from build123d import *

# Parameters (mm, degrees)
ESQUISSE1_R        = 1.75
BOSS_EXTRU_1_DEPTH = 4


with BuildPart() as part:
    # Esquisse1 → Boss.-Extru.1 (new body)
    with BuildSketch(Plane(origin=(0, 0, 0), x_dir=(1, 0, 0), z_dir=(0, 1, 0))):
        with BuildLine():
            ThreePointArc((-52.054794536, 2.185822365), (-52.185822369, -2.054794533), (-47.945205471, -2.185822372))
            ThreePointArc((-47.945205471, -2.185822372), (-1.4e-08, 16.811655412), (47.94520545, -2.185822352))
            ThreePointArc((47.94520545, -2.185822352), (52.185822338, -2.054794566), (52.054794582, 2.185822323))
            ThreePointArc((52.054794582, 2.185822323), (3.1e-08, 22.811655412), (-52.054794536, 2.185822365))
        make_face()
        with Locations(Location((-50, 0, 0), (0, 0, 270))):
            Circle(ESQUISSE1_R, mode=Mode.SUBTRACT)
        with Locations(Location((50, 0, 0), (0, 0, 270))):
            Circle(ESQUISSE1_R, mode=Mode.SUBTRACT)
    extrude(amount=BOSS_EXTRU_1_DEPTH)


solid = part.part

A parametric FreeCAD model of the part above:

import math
import FreeCAD as App
import Part
import Sketcher

V = App.Vector
Q = App.Units.Quantity

doc = App.newDocument("Part")
body = doc.addObject("PartDesign::Body", "Body")

# Sketch on XZ plane
sketch1 = body.newObject("Sketcher::SketchObject", "Sketch")
sketch1.AttachmentSupport = (doc.getObject("XZ_Plane"), [""])
sketch1.MapMode = "FlatFace"
sketch1.addGeometry(Part.ArcOfCircle(Part.Circle(V(-50, 0, 0), V(0, 0, 1), 3), math.radians(47), math.radians(227)), False)
sketch1.addGeometry(Part.ArcOfCircle(Part.Circle(V(0, 53.2, 0), V(0, 0, 1), 70), math.radians(-133), math.radians(-47)), False)
sketch1.addGeometry(Part.ArcOfCircle(Part.Circle(V(50, 0, 0), V(0, 0, 1), 3), math.radians(-47), math.radians(133)), False)
sketch1.addGeometry(Part.ArcOfCircle(Part.Circle(V(0, 53.2, 0), V(0, 0, 1), 76), math.radians(-133), math.radians(-47)), False)
sketch1.addGeometry(Part.Circle(V(-50, 0, 0), V(0, 0, 1), 1.8), False)
sketch1.addGeometry(Part.Circle(V(50, 0, 0), V(0, 0, 1), 1.8), False)
sketch1.addConstraint(Sketcher.Constraint("Tangent", 0, 1, 1, 1))
sketch1.addConstraint(Sketcher.Constraint("Tangent", 1, 2, 2, 2))
sketch1.addConstraint(Sketcher.Constraint("Tangent", 2, 1, 3, 2))
sketch1.addConstraint(Sketcher.Constraint("Tangent", 3, 1, 0, 2))
sketch1.addConstraint(Sketcher.Constraint("Coincident", 3, 3, 1, 3))
sketch1.addConstraint(Sketcher.Constraint("Coincident", 4, 3, 0, 3))
sketch1.addConstraint(Sketcher.Constraint("Coincident", 5, 3, 2, 3))
sketch1.addConstraint(Sketcher.Constraint("Equal", 4, 5))
sketch1.addConstraint(Sketcher.Constraint("Symmetric", 0, 3, 2, 3, -1, 1))
sketch1.addConstraint(Sketcher.Constraint("PointOnObject", 0, 3, -1))
sketch1.addConstraint(Sketcher.Constraint("Radius", 0, Q("3 mm")))
sketch1.addConstraint(Sketcher.Constraint("Radius", 1, Q("70 mm")))
sketch1.addConstraint(Sketcher.Constraint("Diameter", 4, Q("3.5 mm")))
sketch1.addConstraint(Sketcher.Constraint("DistanceX", 0, 3, -1, 1, Q("50 mm")))
pad1 = body.newObject("PartDesign::Pad", "Pad")
pad1.Profile = sketch1
pad1.Length = 4
pad1.Reversed = True

doc.recompute()
